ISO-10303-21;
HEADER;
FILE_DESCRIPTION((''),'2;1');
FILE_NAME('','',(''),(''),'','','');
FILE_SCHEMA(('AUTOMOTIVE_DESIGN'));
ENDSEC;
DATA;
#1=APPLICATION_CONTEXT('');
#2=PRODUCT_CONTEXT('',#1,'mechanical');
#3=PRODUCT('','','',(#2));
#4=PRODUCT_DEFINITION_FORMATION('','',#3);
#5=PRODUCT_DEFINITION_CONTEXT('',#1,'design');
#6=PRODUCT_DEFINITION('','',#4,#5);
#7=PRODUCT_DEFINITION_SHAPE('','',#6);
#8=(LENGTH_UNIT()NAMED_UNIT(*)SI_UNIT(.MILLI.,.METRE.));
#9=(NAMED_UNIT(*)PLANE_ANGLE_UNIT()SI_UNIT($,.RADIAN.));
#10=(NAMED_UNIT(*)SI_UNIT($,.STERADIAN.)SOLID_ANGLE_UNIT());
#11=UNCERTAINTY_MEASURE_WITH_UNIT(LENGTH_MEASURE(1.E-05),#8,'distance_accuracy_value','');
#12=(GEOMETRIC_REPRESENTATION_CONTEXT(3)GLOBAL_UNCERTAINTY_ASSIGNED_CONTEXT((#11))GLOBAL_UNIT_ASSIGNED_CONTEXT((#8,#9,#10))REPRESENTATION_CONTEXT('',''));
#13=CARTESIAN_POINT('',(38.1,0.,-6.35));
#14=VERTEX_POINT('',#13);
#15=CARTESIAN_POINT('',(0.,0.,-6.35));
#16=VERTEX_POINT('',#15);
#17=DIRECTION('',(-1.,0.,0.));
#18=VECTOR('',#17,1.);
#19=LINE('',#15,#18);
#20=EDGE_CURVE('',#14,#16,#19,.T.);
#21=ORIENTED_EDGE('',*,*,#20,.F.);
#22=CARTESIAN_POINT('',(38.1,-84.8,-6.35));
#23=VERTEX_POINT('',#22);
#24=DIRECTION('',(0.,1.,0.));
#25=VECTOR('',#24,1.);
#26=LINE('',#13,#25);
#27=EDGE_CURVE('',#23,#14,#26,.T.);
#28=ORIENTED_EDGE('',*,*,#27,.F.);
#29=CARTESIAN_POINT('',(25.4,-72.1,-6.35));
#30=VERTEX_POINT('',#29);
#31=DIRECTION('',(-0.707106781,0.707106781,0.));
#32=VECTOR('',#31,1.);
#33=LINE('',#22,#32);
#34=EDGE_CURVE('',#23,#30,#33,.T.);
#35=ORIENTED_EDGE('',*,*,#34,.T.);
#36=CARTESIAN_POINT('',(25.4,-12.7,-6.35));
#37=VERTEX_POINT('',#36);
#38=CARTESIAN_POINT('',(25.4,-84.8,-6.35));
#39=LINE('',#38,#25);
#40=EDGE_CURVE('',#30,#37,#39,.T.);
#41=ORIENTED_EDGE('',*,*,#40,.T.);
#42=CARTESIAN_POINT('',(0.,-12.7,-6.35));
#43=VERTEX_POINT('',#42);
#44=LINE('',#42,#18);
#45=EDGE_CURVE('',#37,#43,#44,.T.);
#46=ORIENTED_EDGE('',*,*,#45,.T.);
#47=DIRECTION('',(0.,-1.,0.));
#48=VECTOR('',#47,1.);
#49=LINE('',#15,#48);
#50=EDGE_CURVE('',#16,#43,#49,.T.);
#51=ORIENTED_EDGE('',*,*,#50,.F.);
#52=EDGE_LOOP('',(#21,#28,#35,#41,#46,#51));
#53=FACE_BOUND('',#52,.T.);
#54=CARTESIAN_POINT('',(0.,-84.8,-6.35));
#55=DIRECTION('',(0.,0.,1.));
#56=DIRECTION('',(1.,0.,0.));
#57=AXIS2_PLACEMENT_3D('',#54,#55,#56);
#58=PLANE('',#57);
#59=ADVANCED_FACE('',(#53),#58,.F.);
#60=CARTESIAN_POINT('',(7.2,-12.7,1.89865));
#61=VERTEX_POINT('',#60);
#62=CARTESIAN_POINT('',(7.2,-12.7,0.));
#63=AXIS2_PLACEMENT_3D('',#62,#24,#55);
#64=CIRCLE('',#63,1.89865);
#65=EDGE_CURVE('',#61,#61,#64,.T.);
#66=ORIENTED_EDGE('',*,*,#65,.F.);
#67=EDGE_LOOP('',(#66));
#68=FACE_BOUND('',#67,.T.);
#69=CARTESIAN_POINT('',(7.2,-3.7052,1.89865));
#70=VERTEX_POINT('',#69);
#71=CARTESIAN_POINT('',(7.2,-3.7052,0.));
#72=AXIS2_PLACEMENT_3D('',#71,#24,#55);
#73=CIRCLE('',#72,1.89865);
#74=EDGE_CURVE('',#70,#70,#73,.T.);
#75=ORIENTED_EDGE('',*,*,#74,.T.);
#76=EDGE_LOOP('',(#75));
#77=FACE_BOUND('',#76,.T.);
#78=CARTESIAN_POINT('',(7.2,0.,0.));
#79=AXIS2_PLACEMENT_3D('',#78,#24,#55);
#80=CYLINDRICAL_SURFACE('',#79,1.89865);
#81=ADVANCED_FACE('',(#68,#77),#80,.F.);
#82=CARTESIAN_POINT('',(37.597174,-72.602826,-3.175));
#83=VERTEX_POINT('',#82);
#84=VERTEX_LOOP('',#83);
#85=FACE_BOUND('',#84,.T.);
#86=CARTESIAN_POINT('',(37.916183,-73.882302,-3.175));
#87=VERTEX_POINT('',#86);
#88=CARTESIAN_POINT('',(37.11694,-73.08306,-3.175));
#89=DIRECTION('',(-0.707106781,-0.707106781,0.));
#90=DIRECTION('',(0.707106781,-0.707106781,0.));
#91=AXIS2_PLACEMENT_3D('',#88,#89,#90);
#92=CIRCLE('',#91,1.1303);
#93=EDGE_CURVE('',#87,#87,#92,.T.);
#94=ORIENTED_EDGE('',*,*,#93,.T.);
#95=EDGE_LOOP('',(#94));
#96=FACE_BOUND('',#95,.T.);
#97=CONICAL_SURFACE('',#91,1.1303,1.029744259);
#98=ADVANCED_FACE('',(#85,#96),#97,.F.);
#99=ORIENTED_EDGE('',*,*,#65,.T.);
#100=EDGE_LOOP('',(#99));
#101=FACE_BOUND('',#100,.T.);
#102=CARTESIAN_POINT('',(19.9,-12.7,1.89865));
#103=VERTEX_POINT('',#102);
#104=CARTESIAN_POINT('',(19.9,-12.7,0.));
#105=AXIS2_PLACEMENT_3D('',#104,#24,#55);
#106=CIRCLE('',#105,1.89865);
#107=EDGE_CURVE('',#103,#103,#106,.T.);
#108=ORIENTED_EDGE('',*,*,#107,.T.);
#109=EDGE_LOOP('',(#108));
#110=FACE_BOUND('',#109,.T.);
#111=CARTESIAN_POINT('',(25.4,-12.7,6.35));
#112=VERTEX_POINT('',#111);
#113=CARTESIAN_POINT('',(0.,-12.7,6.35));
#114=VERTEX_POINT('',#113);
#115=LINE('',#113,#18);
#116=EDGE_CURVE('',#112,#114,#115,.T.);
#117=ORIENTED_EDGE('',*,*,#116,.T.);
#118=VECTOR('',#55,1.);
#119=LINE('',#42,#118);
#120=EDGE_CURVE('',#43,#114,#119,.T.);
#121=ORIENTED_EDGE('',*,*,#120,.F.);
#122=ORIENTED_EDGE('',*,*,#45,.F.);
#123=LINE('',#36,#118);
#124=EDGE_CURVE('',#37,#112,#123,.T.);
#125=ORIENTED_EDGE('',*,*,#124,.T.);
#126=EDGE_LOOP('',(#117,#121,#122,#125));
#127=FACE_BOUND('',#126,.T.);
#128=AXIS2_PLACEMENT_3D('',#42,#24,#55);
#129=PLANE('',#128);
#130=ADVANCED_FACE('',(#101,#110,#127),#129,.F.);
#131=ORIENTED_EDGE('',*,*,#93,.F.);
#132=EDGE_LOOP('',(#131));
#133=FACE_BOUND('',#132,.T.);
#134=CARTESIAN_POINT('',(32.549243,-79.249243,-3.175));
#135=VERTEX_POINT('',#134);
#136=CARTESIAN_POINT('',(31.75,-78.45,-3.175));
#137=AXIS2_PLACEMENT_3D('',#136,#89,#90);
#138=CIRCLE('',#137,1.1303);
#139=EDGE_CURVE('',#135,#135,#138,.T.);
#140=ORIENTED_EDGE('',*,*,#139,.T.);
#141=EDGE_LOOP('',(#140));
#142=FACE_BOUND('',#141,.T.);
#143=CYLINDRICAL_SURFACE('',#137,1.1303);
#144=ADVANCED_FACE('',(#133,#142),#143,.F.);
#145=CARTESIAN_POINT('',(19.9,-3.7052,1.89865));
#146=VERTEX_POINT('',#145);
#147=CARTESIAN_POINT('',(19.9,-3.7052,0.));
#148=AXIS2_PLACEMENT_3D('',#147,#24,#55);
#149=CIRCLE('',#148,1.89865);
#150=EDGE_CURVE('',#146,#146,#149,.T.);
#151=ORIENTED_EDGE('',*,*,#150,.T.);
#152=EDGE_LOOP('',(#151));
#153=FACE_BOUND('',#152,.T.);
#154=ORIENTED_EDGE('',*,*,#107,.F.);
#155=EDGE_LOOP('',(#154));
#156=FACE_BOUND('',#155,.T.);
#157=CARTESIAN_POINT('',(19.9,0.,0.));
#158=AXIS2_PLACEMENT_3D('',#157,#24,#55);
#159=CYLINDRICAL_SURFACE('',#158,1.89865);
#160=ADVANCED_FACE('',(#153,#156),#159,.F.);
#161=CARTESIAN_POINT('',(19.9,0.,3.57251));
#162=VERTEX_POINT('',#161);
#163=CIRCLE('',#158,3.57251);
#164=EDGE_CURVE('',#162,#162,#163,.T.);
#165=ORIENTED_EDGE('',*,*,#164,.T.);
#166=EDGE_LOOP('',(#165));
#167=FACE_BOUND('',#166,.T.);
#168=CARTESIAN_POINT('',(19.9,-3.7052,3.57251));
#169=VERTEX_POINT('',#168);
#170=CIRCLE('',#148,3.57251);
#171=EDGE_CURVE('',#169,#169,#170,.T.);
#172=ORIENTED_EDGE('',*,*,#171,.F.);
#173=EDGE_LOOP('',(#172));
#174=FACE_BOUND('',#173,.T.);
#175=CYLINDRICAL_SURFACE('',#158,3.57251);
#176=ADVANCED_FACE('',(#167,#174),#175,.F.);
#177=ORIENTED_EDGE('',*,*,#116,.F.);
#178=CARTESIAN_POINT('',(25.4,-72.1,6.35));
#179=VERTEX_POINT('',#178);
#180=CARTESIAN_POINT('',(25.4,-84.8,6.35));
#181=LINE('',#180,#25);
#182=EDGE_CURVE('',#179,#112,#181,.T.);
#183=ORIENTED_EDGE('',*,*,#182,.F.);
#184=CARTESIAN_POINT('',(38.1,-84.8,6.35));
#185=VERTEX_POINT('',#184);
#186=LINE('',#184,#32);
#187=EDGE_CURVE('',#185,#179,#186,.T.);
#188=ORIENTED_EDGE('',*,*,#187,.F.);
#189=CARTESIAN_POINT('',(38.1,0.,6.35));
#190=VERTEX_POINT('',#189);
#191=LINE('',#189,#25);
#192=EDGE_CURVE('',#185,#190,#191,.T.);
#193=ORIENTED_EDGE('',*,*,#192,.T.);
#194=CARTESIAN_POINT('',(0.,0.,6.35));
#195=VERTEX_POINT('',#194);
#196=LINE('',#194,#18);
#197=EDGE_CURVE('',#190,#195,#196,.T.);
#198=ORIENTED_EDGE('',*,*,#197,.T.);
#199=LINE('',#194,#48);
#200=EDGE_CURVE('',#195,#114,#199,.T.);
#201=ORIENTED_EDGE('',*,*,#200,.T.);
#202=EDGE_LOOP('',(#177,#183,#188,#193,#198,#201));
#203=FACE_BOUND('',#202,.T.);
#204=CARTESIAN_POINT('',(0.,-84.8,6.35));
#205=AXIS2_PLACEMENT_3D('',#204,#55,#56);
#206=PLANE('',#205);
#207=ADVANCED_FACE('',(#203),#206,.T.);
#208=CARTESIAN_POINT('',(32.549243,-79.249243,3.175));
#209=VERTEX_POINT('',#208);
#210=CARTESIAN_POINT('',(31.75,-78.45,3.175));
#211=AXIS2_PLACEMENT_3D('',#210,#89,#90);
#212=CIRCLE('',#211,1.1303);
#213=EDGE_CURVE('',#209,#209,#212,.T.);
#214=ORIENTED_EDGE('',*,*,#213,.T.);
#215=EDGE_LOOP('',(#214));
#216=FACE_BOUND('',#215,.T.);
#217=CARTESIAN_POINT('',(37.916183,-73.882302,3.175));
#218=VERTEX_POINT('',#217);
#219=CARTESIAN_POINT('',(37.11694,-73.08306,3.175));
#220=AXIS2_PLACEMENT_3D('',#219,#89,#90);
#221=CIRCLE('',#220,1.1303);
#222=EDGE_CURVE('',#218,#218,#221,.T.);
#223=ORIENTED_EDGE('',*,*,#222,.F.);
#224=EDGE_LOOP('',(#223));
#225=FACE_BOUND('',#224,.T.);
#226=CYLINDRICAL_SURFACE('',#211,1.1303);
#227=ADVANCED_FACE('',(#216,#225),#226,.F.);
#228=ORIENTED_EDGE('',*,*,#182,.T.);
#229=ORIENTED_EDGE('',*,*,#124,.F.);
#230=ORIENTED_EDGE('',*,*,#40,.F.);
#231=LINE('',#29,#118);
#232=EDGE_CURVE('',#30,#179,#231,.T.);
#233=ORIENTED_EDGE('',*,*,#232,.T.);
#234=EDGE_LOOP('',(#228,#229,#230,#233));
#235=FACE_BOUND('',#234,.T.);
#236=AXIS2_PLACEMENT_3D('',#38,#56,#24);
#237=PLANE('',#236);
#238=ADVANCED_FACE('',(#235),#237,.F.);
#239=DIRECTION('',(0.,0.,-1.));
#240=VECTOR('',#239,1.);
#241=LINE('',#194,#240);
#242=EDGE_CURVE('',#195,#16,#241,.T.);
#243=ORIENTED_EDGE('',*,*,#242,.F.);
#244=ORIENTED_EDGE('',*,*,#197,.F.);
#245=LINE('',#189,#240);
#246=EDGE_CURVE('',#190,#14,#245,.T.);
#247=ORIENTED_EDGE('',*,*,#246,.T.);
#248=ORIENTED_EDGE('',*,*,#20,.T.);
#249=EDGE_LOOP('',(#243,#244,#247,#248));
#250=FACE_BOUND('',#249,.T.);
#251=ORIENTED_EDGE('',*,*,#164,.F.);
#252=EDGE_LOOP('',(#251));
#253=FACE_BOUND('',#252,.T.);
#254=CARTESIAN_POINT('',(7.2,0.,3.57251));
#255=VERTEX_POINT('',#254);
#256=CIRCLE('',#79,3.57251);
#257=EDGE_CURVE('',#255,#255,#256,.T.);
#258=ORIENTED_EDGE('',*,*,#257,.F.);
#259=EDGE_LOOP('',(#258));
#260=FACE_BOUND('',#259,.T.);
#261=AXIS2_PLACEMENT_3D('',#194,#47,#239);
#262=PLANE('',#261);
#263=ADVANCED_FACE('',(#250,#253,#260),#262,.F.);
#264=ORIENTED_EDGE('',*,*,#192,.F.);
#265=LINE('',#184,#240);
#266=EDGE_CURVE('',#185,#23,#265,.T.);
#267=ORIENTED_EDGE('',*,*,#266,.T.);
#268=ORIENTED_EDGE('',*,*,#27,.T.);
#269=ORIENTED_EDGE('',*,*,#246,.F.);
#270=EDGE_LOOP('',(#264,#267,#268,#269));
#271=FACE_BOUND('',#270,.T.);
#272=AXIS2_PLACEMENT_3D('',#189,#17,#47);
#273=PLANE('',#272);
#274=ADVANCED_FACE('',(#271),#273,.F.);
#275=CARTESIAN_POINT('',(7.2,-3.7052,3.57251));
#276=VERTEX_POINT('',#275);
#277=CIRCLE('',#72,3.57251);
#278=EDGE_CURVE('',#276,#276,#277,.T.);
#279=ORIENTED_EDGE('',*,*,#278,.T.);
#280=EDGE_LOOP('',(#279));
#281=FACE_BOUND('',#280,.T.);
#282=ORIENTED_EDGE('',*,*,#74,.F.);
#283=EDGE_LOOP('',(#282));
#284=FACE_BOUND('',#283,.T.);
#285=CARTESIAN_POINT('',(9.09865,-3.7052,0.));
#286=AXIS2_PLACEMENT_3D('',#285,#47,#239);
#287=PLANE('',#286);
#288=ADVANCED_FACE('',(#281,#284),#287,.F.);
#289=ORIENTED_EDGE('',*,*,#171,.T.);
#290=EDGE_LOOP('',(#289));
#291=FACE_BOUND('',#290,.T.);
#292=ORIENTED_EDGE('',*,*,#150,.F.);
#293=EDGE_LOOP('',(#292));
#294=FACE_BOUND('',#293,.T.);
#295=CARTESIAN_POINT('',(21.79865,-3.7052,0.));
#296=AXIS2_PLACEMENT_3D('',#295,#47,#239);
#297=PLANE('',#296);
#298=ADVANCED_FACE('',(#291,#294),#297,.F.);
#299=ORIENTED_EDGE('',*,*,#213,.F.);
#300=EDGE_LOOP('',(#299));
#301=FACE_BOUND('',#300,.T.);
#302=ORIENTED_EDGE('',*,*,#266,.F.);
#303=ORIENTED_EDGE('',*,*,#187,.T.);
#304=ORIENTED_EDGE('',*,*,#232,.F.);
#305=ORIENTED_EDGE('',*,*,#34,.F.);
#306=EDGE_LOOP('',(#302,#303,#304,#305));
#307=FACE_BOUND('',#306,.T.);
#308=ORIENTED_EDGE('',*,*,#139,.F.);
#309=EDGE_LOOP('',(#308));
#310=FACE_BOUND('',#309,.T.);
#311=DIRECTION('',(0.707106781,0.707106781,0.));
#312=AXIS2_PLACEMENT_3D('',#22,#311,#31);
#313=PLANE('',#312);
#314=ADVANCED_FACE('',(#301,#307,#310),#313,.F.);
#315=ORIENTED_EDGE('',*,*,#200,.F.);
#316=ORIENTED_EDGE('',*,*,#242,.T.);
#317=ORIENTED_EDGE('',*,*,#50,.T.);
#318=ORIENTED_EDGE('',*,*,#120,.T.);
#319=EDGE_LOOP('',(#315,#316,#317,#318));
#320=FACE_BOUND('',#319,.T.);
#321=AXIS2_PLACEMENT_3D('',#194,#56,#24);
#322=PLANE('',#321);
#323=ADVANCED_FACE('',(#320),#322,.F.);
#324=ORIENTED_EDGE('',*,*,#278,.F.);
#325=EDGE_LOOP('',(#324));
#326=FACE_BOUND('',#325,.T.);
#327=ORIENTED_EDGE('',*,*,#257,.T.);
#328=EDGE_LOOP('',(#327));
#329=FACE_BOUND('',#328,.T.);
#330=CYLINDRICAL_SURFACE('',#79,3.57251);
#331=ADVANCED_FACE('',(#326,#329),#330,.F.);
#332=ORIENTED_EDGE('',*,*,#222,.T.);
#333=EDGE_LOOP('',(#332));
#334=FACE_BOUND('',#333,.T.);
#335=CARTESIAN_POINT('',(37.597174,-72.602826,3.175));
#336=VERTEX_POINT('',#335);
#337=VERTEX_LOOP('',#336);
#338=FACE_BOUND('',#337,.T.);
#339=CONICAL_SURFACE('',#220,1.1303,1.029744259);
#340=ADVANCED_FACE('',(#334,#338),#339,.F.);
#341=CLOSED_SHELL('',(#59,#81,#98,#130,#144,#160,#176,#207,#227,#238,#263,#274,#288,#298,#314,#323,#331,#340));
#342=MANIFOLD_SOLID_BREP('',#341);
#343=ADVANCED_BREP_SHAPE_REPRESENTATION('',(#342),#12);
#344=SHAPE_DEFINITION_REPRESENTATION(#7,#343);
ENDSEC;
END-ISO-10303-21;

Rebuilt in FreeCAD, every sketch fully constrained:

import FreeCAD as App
import Part
import Sketcher
Q = App.Units.Quantity

doc = App.newDocument("Part")
body = doc.addObject("PartDesign::Body", "Body")

sketch1 = doc.addObject("Sketcher::SketchObject", "Sketch")
body.addObject(sketch1)
sketch1.AttachmentSupport = (doc.XY_Plane, [""])
sketch1.MapMode = "FlatFace"
sketch1.addGeometry(Part.LineSegment(App.Vector(0, 0, 0), App.Vector(0, -85, 0)), False)
sketch1.addGeometry(Part.LineSegment(App.Vector(0, -85, 0), App.Vector(38, -85, 0)), False)
sketch1.addGeometry(Part.LineSegment(App.Vector(38, -85, 0), App.Vector(38, 0, 0)), False)
sketch1.addGeometry(Part.LineSegment(App.Vector(38, 0, 0), App.Vector(0, 0, 0)), False)
sketch1.addConstraint(Sketcher.Constraint("Coincident", 0, 2, 1, 1))
sketch1.addConstraint(Sketcher.Constraint("Coincident", 1, 2, 2, 1))
sketch1.addConstraint(Sketcher.Constraint("Coincident", 2, 2, 3, 1))
sketch1.addConstraint(Sketcher.Constraint("Coincident", 3, 2, 0, 1))
sketch1.addConstraint(Sketcher.Constraint("Vertical", 0))
sketch1.addConstraint(Sketcher.Constraint("Horizontal", 1))
sketch1.addConstraint(Sketcher.Constraint("Vertical", 2))
sketch1.addConstraint(Sketcher.Constraint("Horizontal", 3))
sketch1.addConstraint(Sketcher.Constraint("Coincident", 3, 2, -1, 1))
sketch1.addConstraint(Sketcher.Constraint("DistanceX", 1, 1, 1, 2, Q("38.1 mm")))
sketch1.addConstraint(Sketcher.Constraint("DistanceY", 0, 2, 0, 1, Q("84.8 mm")))
pad1 = doc.addObject("PartDesign::Pad", "Pad")
body.addObject(pad1)
pad1.Profile = sketch1
pad1.Length = 12.7
pad1.Midplane = True

sketch2 = doc.addObject("Sketcher::SketchObject", "Sketch001")
body.addObject(sketch2)
sketch2.AttachmentSupport = (doc.XY_Plane, [""])
sketch2.MapMode = "FlatFace"
sketch2.AttachmentOffset = App.Placement(App.Vector(0, 0, 6.35), App.Rotation())
sketch2.addGeometry(Part.LineSegment(App.Vector(0, -13, 0), App.Vector(0, -85, 0)), False)
sketch2.addGeometry(Part.LineSegment(App.Vector(0, -85, 0), App.Vector(25, -85, 0)), False)
sketch2.addGeometry(Part.LineSegment(App.Vector(25, -85, 0), App.Vector(25, -13, 0)), False)
sketch2.addGeometry(Part.LineSegment(App.Vector(25, -13, 0), App.Vector(0, -13, 0)), False)
sketch2.addConstraint(Sketcher.Constraint("Coincident", 0, 2, 1, 1))
sketch2.addConstraint(Sketcher.Constraint("Coincident", 1, 2, 2, 1))
sketch2.addConstraint(Sketcher.Constraint("Coincident", 2, 2, 3, 1))
sketch2.addConstraint(Sketcher.Constraint("Coincident", 3, 2, 0, 1))
sketch2.addConstraint(Sketcher.Constraint("Vertical", 0))
sketch2.addConstraint(Sketcher.Constraint("Horizontal", 1))
sketch2.addConstraint(Sketcher.Constraint("Vertical", 2))
sketch2.addConstraint(Sketcher.Constraint("Horizontal", 3))
sketch2.addConstraint(Sketcher.Constraint("PointOnObject", 0, 2, -2))
sketch2.addConstraint(Sketcher.Constraint("DistanceX", 1, 1, 1, 2, Q("25.4 mm")))
sketch2.addConstraint(Sketcher.Constraint("DistanceY", 0, 2, 0, 1, Q("72.1 mm")))
sketch2.addConstraint(Sketcher.Constraint("DistanceY", 0, 2, -1, 1, Q("84.8 mm")))
pocket1 = doc.addObject("PartDesign::Pocket", "Pocket")
body.addObject(pocket1)
pocket1.Profile = sketch2
pocket1.Type = "ThroughAll"

sketch3 = doc.addObject("Sketcher::SketchObject", "Sketch002")
body.addObject(sketch3)
sketch3.AttachmentSupport = (doc.XZ_Plane, [""])
sketch3.MapMode = "FlatFace"
sketch3.addGeometry(Part.Circle(App.Vector(7.2, 0, 0), App.Vector(0, 0, 1), 1.9), False)
sketch3.addGeometry(Part.Circle(App.Vector(19.9, 0, 0), App.Vector(0, 0, 1), 1.9), False)
sketch3.addConstraint(Sketcher.Constraint("Equal", 0, 1))
sketch3.addConstraint(Sketcher.Constraint("PointOnObject", 0, 3, -1))
sketch3.addConstraint(Sketcher.Constraint("PointOnObject", 1, 3, -1))
sketch3.addConstraint(Sketcher.Constraint("Diameter", 0, Q("3.7973 mm")))
sketch3.addConstraint(Sketcher.Constraint("DistanceX", -1, 1, 0, 3, Q("7.2 mm")))
sketch3.addConstraint(Sketcher.Constraint("DistanceX", -1, 1, 1, 3, Q("19.9 mm")))
doc.recompute()
hole = doc.addObject("PartDesign::Hole", "Hole")
body.addObject(hole)
hole.Profile = sketch3
hole.ThreadType = "None"
hole.Diameter = 3.7973
hole.DepthType = "ThroughAll"
hole.HoleCutType = "Counterbore"
hole.HoleCutDiameter = 7.14502
hole.HoleCutDepth = 3.7052
hole.Reversed = True

sketch4 = doc.addObject("Sketcher::SketchObject", "Sketch003")
body.addObject(sketch4)
sketch4.AttachmentSupport = (doc.XY_Plane, [""])
sketch4.MapMode = "FlatFace"
sketch4.AttachmentOffset = App.Placement(App.Vector(0, 0, 6.35), App.Rotation())
sketch4.addGeometry(Part.LineSegment(App.Vector(38.1, -84.8, 0), App.Vector(24.4, -71.1, 0)), False)
sketch4.addGeometry(Part.LineSegment(App.Vector(24.4, -71.1, 0), App.Vector(24.4, -85.8, 0)), False)
sketch4.addGeometry(Part.LineSegment(App.Vector(24.4, -85.8, 0), App.Vector(38.1, -85.8, 0)), False)
sketch4.addGeometry(Part.LineSegment(App.Vector(38.1, -85.8, 0), App.Vector(38.1, -84.8, 0)), False)
sketch4.addConstraint(Sketcher.Constraint("Coincident", 0, 2, 1, 1))
sketch4.addConstraint(Sketcher.Constraint("Coincident", 1, 2, 2, 1))
sketch4.addConstraint(Sketcher.Constraint("Coincident", 2, 2, 3, 1))
sketch4.addConstraint(Sketcher.Constraint("Coincident", 3, 2, 0, 1))
sketch4.addConstraint(Sketcher.Constraint("Vertical", 1))
sketch4.addConstraint(Sketcher.Constraint("Horizontal", 2))
sketch4.addConstraint(Sketcher.Constraint("Vertical", 3))
sketch4.addConstraint(Sketcher.Constraint("DistanceY", 3, 1, 3, 2, Q("1 mm")))
sketch4.addConstraint(Sketcher.Constraint("Angle", 0, Q("135 deg")))
sketch4.addConstraint(Sketcher.Constraint("DistanceX", 2, 1, 2, 2, Q("13.7 mm")))
sketch4.addConstraint(Sketcher.Constraint("DistanceX", -1, 1, 0, 2, Q("24.4 mm")))
sketch4.addConstraint(Sketcher.Constraint("DistanceY", 0, 2, -1, 1, Q("71.1 mm")))
pocket2 = doc.addObject("PartDesign::Pocket", "Pocket001")
body.addObject(pocket2)
pocket2.Profile = sketch4
pocket2.Type = "ThroughAll"

sketch5 = doc.addObject("Sketcher::SketchObject", "Sketch004")
body.addObject(sketch5)
sketch5.Placement = App.Placement(App.Vector(-23.35, -23.35, 0), App.Rotation(App.Vector(-0.707106781, 0.707106781, 0), App.Vector(0, 0, -0.999999999), App.Vector(-0.707106781, -0.707106781, 0), "ZXY"))
sketch5.addGeometry(Part.Circle(App.Vector(-77.9, 3.2, 0), App.Vector(0, 0, 1), 1.1), False)
sketch5.addGeometry(Part.Circle(App.Vector(-77.9, -3.2, 0), App.Vector(0, 0, 1), 1.1), False)
sketch5.addConstraint(Sketcher.Constraint("Equal", 0, 1))
sketch5.addConstraint(Sketcher.Constraint("Symmetric", 0, 3, 1, 3, -1))
sketch5.addConstraint(Sketcher.Constraint("Diameter", 0, Q("2.2606 mm")))
sketch5.addConstraint(Sketcher.Constraint("DistanceY", 1, 3, 0, 3, Q("6.35 mm")))
sketch5.addConstraint(Sketcher.Constraint("DistanceX", 0, 3, -1, 1, Q("77.923167 mm")))
doc.recompute()
hole2 = doc.addObject("PartDesign::Hole", "Hole001")
body.addObject(hole2)
hole2.Profile = sketch5
hole2.ThreadType = "None"
hole2.Diameter = 2.2606
hole2.DepthType = "Dimension"
hole2.Depth = 7.59
hole2.DrillPoint = "Angled"
hole2.DrillPointAngle = 118

doc.recompute()
